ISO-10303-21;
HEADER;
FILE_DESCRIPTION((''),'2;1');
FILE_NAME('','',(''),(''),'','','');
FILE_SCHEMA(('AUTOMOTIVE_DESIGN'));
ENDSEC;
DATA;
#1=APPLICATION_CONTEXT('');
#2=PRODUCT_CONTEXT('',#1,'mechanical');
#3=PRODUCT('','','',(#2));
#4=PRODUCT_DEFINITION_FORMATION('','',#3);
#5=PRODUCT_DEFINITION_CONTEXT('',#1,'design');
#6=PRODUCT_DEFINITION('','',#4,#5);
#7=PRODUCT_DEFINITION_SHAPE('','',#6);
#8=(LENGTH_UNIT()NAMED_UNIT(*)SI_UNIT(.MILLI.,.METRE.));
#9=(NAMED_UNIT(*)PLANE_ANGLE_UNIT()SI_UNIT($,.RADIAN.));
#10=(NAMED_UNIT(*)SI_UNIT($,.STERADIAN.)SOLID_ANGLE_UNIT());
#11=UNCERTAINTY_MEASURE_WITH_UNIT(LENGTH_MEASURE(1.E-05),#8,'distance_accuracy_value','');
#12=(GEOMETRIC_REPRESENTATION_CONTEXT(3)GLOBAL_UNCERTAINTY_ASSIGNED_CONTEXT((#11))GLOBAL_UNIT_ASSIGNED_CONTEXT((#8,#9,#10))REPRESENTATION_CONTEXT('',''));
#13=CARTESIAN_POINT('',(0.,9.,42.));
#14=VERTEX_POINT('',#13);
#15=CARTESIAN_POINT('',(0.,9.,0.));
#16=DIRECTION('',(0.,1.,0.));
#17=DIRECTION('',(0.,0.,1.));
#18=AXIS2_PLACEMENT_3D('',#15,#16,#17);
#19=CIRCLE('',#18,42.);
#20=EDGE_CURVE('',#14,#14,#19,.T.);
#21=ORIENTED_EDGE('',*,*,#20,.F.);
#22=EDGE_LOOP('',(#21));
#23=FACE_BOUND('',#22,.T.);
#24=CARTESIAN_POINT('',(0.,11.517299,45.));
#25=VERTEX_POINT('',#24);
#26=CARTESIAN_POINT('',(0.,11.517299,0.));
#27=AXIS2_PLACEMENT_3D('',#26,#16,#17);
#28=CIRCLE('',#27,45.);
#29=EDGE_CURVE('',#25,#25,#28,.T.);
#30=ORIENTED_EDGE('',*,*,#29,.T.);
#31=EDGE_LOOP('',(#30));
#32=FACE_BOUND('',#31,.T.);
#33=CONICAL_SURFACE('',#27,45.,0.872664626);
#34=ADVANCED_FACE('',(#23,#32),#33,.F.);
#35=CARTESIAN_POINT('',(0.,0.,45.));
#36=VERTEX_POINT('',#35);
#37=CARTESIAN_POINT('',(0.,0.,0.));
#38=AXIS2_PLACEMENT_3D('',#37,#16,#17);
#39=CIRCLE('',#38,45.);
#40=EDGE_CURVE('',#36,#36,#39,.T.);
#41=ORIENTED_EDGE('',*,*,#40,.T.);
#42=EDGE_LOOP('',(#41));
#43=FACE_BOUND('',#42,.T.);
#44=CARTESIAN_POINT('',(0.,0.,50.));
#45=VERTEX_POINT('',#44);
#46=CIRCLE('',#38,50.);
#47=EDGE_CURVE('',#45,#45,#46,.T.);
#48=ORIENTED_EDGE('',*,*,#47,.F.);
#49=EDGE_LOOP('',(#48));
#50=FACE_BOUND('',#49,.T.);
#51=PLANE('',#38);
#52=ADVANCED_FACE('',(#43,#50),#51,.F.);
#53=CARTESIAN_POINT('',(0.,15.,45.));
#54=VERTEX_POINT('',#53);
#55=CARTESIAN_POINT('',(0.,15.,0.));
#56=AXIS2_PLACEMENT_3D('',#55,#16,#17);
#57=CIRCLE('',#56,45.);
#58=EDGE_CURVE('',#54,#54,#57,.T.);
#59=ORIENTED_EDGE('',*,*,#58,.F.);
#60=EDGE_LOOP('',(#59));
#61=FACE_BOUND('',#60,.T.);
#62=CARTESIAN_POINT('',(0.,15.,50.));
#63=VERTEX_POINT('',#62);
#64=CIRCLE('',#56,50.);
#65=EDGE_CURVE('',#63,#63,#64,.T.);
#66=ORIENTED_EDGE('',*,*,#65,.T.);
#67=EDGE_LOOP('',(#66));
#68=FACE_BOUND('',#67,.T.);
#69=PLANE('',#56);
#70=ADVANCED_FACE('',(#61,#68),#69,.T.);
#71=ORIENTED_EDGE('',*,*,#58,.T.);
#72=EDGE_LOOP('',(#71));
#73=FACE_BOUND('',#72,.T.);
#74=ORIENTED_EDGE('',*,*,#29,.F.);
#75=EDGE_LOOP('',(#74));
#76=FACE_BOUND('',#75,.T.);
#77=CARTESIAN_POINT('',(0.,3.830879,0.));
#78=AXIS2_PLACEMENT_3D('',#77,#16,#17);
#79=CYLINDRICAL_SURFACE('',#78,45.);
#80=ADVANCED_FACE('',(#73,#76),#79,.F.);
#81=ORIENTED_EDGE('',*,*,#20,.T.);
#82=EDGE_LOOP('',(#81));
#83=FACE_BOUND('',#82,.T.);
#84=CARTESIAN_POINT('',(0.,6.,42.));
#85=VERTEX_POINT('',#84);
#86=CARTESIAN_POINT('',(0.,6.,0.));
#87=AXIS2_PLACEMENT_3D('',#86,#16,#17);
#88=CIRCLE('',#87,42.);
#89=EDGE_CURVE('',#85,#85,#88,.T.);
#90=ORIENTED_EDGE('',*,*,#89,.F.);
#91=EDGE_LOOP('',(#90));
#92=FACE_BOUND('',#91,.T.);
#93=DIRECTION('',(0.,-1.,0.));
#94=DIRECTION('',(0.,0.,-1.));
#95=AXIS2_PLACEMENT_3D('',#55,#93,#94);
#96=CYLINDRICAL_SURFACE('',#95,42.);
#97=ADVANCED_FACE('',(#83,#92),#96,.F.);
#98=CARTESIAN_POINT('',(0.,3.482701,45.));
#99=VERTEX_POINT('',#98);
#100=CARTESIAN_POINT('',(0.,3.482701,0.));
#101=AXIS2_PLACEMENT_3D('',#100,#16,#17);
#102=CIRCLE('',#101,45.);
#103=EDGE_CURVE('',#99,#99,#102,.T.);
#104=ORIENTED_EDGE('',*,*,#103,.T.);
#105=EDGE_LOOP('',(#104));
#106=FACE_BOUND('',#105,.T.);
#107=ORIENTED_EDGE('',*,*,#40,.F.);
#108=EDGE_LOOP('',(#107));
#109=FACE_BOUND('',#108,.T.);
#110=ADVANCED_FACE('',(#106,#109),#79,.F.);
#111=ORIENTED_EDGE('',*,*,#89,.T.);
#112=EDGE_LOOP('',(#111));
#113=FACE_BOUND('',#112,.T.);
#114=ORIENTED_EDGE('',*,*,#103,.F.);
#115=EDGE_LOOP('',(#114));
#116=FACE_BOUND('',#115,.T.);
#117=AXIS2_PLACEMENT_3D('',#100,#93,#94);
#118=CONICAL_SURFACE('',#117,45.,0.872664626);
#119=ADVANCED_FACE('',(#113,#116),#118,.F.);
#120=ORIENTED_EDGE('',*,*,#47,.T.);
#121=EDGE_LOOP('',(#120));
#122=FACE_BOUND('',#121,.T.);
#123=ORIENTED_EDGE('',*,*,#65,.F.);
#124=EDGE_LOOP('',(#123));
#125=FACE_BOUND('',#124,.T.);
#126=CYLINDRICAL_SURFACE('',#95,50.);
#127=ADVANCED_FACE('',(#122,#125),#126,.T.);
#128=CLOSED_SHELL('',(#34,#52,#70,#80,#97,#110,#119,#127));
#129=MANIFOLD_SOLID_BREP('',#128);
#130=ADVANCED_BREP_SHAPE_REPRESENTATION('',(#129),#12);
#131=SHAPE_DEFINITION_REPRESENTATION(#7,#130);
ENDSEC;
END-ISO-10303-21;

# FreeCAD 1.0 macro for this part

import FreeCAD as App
import Part
import Sketcher
Q = App.Units.Quantity


def add_polygon(sketch, points):
    """Adds a closed chain of lines whose ends are joined by coincident constraints."""
    first, n = sketch.GeometryCount, len(points)
    for a, b in zip(points, points[1:] + points[:1]):
        sketch.addGeometry(Part.LineSegment(App.Vector(*a, 0), App.Vector(*b, 0)), False)
    for i in range(n):
        sketch.addConstraint(Sketcher.Constraint("Coincident", first + i, 2, first + (i + 1) % n, 1))

doc = App.newDocument("Part")
params = doc.addObject("Spreadsheet::Sheet", "Params")
for row, (alias, value) in enumerate([
    ("sketch1_diameter", "100 mm"),
    ("sketch1_diameter2", "84 mm"),
    ("pad1_length", "15 mm"),
    ("sketch2_width", "3 mm"),
    ("sketch2_height", "6 mm"),
    ("groove_angle", "360 deg"),
], start=1):
    params.set(f"A{row}", alias)
    params.set(f"B{row}", "=" + value)
    params.setAlias(f"B{row}", alias)

body = doc.addObject("PartDesign::Body", "Body")

sketch1 = body.newObject("Sketcher::SketchObject", "Sketch")
sketch1.AttachmentSupport = (doc.getObject("XZ_Plane"), [""])
sketch1.MapMode = "FlatFace"
sketch1.addGeometry(Part.Circle(App.Vector(0, 0, 0), App.Vector(0, 0, 1), 50), False)
sketch1.addGeometry(Part.Circle(App.Vector(0, 0, 0), App.Vector(0, 0, 1), 42), False)
sketch1.addConstraint(Sketcher.Constraint("Coincident", 0, 3, -1, 1))
sketch1.addConstraint(Sketcher.Constraint("Coincident", 1, 3, -1, 1))
sketch1.addConstraint(Sketcher.Constraint("Diameter", 0, Q("100 mm")))
sketch1.addConstraint(Sketcher.Constraint("Diameter", 1, Q("84 mm")))
sketch1.setExpression("Constraints[2]", "Params.sketch1_diameter")
sketch1.setExpression("Constraints[3]", "Params.sketch1_diameter2")
pad1 = body.newObject("PartDesign::Pad", "Pad")
pad1.Profile = sketch1
pad1.setExpression("Length", "Params.pad1_length")
pad1.Reversed = True

sketch2 = body.newObject("Sketcher::SketchObject", "Sketch001")
sketch2.AttachmentSupport = (doc.getObject("XY_Plane"), [""])
sketch2.MapMode = "FlatFace"
add_polygon(sketch2, [(-45, 11.5), (-42, 9), (-42, 15), (-45, 15)])
add_polygon(sketch2, [(-45, 0), (-42, 0), (-42, 6), (-45, 3.5)])
sketch2.addConstraint(Sketcher.Constraint("Vertical", 1))
sketch2.addConstraint(Sketcher.Constraint("Horizontal", 2))
sketch2.addConstraint(Sketcher.Constraint("Vertical", 3))
sketch2.addConstraint(Sketcher.Constraint("Horizontal", 4))
sketch2.addConstraint(Sketcher.Constraint("Vertical", 5))
sketch2.addConstraint(Sketcher.Constraint("Vertical", 7))
sketch2.addConstraint(Sketcher.Constraint("PointOnObject", 4, 2, -1))
sketch2.addConstraint(Sketcher.Constraint("Vertical", 1, 2, 4, 2))
sketch2.addConstraint(Sketcher.Constraint("Vertical", 3, 2, 6, 2))
sketch2.addConstraint(Sketcher.Constraint("Equal", 1, 5))
sketch2.addConstraint(Sketcher.Constraint("Equal", 3, 7))
sketch2.addConstraint(Sketcher.Constraint("DistanceX", 2, 2, 2, 1, Q("3 mm")))
sketch2.addConstraint(Sketcher.Constraint("DistanceY", 1, 1, 1, 2, Q("6 mm")))
sketch2.addConstraint(Sketcher.Constraint("Angle", 0, Q("-40 deg")))
sketch2.addConstraint(Sketcher.Constraint("DistanceX", 0, 2, -1, 1, Q("42 mm")))
sketch2.addConstraint(Sketcher.Constraint("DistanceY", -1, 1, 0, 2, Q("9 mm")))
sketch2.setExpression("Constraints[19]", "Params.sketch2_width")
sketch2.setExpression("Constraints[20]", "Params.sketch2_height")
groove = body.newObject("PartDesign::Groove", "Groove")
groove.Profile = sketch2
groove.ReferenceAxis = (sketch2, ["V_Axis"])
groove.setExpression("Angle", "Params.groove_angle")

doc.recompute()
